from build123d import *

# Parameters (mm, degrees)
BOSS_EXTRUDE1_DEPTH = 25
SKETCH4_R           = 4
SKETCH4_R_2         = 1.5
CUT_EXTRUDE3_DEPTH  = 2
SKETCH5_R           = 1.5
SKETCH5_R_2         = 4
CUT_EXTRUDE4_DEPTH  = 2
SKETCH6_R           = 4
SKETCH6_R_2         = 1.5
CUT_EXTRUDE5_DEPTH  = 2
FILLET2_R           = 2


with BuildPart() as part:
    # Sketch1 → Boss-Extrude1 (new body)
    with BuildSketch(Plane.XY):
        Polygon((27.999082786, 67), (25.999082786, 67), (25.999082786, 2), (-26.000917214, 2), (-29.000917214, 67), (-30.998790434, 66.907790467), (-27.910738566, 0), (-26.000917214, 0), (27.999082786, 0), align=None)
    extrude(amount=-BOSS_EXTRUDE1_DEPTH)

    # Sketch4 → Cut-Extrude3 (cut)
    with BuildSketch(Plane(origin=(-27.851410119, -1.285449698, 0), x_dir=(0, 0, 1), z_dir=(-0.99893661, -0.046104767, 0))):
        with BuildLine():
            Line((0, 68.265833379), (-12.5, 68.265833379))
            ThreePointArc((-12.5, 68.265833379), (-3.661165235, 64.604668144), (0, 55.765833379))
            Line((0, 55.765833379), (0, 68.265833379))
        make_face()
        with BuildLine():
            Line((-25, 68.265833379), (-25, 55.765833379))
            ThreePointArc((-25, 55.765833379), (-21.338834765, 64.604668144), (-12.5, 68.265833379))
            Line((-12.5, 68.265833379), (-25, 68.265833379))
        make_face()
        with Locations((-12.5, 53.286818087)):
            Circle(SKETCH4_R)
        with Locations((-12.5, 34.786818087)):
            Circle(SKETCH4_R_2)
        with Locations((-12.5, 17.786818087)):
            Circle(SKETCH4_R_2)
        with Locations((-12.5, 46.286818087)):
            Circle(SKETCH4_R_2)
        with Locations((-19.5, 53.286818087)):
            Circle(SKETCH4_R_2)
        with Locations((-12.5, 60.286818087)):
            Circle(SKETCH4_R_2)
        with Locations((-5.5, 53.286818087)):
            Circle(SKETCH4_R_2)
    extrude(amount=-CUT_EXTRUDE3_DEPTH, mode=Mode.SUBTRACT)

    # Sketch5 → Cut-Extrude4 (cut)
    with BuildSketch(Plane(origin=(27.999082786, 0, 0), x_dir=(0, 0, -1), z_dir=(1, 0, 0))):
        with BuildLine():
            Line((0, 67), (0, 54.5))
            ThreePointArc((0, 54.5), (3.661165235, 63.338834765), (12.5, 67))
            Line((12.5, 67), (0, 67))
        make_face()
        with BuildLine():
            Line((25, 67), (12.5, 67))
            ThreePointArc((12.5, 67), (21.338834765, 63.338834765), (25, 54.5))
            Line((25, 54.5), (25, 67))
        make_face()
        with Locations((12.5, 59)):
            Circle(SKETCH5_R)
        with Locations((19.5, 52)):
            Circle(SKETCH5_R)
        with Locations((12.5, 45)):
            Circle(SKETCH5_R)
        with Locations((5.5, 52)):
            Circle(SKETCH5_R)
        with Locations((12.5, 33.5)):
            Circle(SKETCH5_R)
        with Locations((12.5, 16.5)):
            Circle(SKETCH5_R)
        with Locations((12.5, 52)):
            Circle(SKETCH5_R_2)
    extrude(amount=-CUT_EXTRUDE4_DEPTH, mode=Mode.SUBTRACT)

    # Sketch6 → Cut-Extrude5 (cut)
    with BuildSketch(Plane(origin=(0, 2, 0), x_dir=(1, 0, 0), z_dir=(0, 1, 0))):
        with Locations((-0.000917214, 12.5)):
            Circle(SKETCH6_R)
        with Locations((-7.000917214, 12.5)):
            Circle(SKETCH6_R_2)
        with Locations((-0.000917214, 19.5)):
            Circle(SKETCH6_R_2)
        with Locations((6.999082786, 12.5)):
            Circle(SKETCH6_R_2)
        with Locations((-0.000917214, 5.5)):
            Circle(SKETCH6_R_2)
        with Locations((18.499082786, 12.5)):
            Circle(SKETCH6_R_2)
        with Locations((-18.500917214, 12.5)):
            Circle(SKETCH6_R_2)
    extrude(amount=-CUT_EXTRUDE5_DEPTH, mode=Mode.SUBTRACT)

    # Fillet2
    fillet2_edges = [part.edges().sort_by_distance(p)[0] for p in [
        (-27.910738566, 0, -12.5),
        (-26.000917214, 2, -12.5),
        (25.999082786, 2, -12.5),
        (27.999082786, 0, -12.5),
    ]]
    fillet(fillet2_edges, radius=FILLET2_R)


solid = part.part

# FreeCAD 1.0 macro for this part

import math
import FreeCAD as App
import Part
import Sketcher

V = App.Vector


def edges_at(feature, points):
    """Names of the edges that pass closest to the given points."""
    edges = feature.Shape.Edges
    near = lambda p: min(range(len(edges)), key=lambda i: edges[i].distToShape(Part.Vertex(*p))[0])
    return sorted({f"Edge{near(p) + 1}" for p in points})


def add_polygon(sketch, points):
    """Adds a closed chain of lines whose ends are joined by coincident constraints."""
    first, n = sketch.GeometryCount, len(points)
    for a, b in zip(points, points[1:] + points[:1]):
        sketch.addGeometry(Part.LineSegment(App.Vector(*a, 0), App.Vector(*b, 0)), False)
    for i in range(n):
        sketch.addConstraint(Sketcher.Constraint("Coincident", first + i, 2, first + (i + 1) % n, 1))

doc = App.newDocument("Part")
body = doc.addObject("PartDesign::Body", "Body")

# Sketch on XY plane
sketch1 = body.newObject("Sketcher::SketchObject", "Sketch")
sketch1.AttachmentSupport = (doc.getObject("XY_Plane"), [""])
sketch1.MapMode = "FlatFace"
add_polygon(sketch1, [(27.999083, 67), (25.999083, 67), (25.999083, 2), (-26.000917, 2), (-29.000917, 67), (-30.99879, 66.90779), (-27.910739, 0), (27.999083, 0)])  # lines 0-7
sketch1.addConstraint([
    Sketcher.Constraint("Horizontal", 0),
    Sketcher.Constraint("Vertical", 1),
    Sketcher.Constraint("Horizontal", 2),
    Sketcher.Constraint("Horizontal", 6),
    Sketcher.Constraint("Vertical", 7),
    Sketcher.Constraint("PointOnObject", 5, 2, -1),
    Sketcher.Constraint("Perpendicular", 3, 4),
    Sketcher.Constraint("Perpendicular", 4, 5),
    Sketcher.Constraint("Horizontal", 0, 2, 3, 2),
    Sketcher.Constraint("DistanceX", 0, 2, 0, 1, 2.0),
    Sketcher.Constraint("DistanceX", 2, 2, 2, 1, 52.0),
    Sketcher.Constraint("DistanceY", 1, 2, 1, 1, 65.0),
    Sketcher.Constraint("DistanceY", 7, 1, 7, 2, 67.0),
    Sketcher.Constraint("Distance", 4, 2.0),
    Sketcher.Constraint("DistanceX", 3, 2, 0, 2, 55.0),
    Sketcher.Constraint("DistanceX", 4, 2, -1, 1, 30.99879),
])
pad1 = body.newObject("PartDesign::Pad", "Pad")
pad1.Profile = sketch1
pad1.Length = 25
pad1.Reversed = True

# Sketch on an angled plane
sketch2 = body.newObject("Sketcher::SketchObject", "Sketch001")
sketch2.Placement = App.Placement(V(-27.85141, -1.28545, 0), App.Rotation(V(0, 0, 1), V(-0.046104767, 0.99893661, 0), V(-0.99893661, -0.046104767, 0), "ZXY"))
sketch2.addGeometry([
    Part.LineSegment(V(0, 68.265833, 0), V(-12.5, 68.265833, 0)),  # 0
    Part.ArcOfCircle(Part.Circle(V(-12.5, 55.765833, 0), V(0, 0, 1), 12.5), math.radians(0), math.radians(90)),  # 1
    Part.LineSegment(V(0, 55.765833, 0), V(0, 68.265833, 0)),  # 2
    Part.LineSegment(V(-25, 68.265833, 0), V(-25, 55.765833, 0)),  # 3
    Part.ArcOfCircle(Part.Circle(V(-12.5, 55.765833, 0), V(0, 0, 1), 12.5), math.radians(90), math.radians(180)),  # 4
    Part.LineSegment(V(-12.5, 68.265833, 0), V(-25, 68.265833, 0)),  # 5
    Part.Circle(V(-12.5, 53.286818, 0), V(0, 0, 1), 4),  # 6
    Part.Circle(V(-12.5, 34.786818, 0), V(0, 0, 1), 1.5),  # 7
    Part.Circle(V(-12.5, 17.786818, 0), V(0, 0, 1), 1.5),  # 8
    Part.Circle(V(-12.5, 46.286818, 0), V(0, 0, 1), 1.5),  # 9
    Part.Circle(V(-19.5, 53.286818, 0), V(0, 0, 1), 1.5),  # 10
    Part.Circle(V(-12.5, 60.286818, 0), V(0, 0, 1), 1.5),  # 11
    Part.Circle(V(-5.5, 53.286818, 0), V(0, 0, 1), 1.5),  # 12
], False)
sketch2.addConstraint([
    Sketcher.Constraint("Tangent", 0, 2, 1, 2),
    Sketcher.Constraint("Tangent", 1, 1, 2, 1),
    Sketcher.Constraint("Coincident", 2, 2, 0, 1),
    Sketcher.Constraint("Tangent", 3, 2, 4, 2),
    Sketcher.Constraint("Tangent", 4, 1, 5, 1),
    Sketcher.Constraint("Coincident", 5, 2, 3, 1),
    Sketcher.Constraint("Horizontal", 0),
    Sketcher.Constraint("Vertical", 2),
    Sketcher.Constraint("Vertical", 3),
    Sketcher.Constraint("Horizontal", 5),
    Sketcher.Constraint("Coincident", 4, 3, 1, 3),
    Sketcher.Constraint("Equal", 1, 4),
    Sketcher.Constraint("Equal", 7, 8),
    Sketcher.Constraint("Equal", 8, 9),
    Sketcher.Constraint("Equal", 9, 10),
    Sketcher.Constraint("Equal", 10, 11),
    Sketcher.Constraint("Equal", 11, 12),
    Sketcher.Constraint("PointOnObject", 1, 1, -2),
    Sketcher.Constraint("Horizontal", 6, 3, 10, 3),
    Sketcher.Constraint("Horizontal", 10, 3, 12, 3),
    Sketcher.Constraint("Vertical", 4, 3, 6, 3),
    Sketcher.Constraint("Vertical", 6, 3, 7, 3),
    Sketcher.Constraint("Vertical", 7, 3, 8, 3),
    Sketcher.Constraint("Vertical", 8, 3, 9, 3),
    Sketcher.Constraint("Vertical", 9, 3, 11, 3),
    Sketcher.Constraint("Diameter", 6, 8.0),
    Sketcher.Constraint("Diameter", 7, 3.0),
    Sketcher.Constraint("Radius", 1, 12.5),
    Sketcher.Constraint("DistanceY", 8, 3, 7, 3, 17.0),
    Sketcher.Constraint("DistanceY", 9, 3, 6, 3, 7.0),
    Sketcher.Constraint("DistanceX", 10, 3, 6, 3, 7.0),
    Sketcher.Constraint("DistanceY", 6, 3, 11, 3, 7.0),
    Sketcher.Constraint("DistanceX", 6, 3, 12, 3, 7.0),
    Sketcher.Constraint("DistanceY", 7, 3, 6, 3, 18.5),
    Sketcher.Constraint("DistanceY", -1, 1, 6, 3, 53.286818),
    Sketcher.Constraint("DistanceY", -1, 1, 1, 3, 55.765833),
])
pocket1 = body.newObject("PartDesign::Pocket", "Pocket")
pocket1.Profile = sketch2
pocket1.Length = 2

# Sketch on YZ plane
sketch3 = body.newObject("Sketcher::SketchObject", "Sketch002")
sketch3.AttachmentSupport = (doc.getObject("YZ_Plane"), [""])
sketch3.MapMode = "FlatFace"
sketch3.AttachmentOffset = App.Placement(V(0, 0, 27.999083), App.Rotation())
sketch3.addGeometry([
    Part.LineSegment(V(67, 0, 0), V(54.5, 0, 0)),  # 0
    Part.ArcOfCircle(Part.Circle(V(54.5, -12.5, 0), V(0, 0, 1), 12.5), math.radians(0), math.radians(90)),  # 1
    Part.LineSegment(V(67, -12.5, 0), V(67, 0, 0)),  # 2
    Part.LineSegment(V(67, -25, 0), V(67, -12.5, 0)),  # 3
    Part.ArcOfCircle(Part.Circle(V(54.5, -12.5, 0), V(0, 0, 1), 12.5), math.radians(-90), math.radians(0)),  # 4
    Part.LineSegment(V(54.5, -25, 0), V(67, -25, 0)),  # 5
    Part.Circle(V(59, -12.5, 0), V(0, 0, 1), 1.5),  # 6
    Part.Circle(V(52, -19.5, 0), V(0, 0, 1), 1.5),  # 7
    Part.Circle(V(45, -12.5, 0), V(0, 0, 1), 1.5),  # 8
    Part.Circle(V(52, -5.5, 0), V(0, 0, 1), 1.5),  # 9
    Part.Circle(V(33.5, -12.5, 0), V(0, 0, 1), 1.5),  # 10
    Part.Circle(V(16.5, -12.5, 0), V(0, 0, 1), 1.5),  # 11
    Part.Circle(V(52, -12.5, 0), V(0, 0, 1), 4),  # 12
], False)
sketch3.addConstraint([
    Sketcher.Constraint("Tangent", 0, 2, 1, 2),
    Sketcher.Constraint("Tangent", 1, 1, 2, 1),
    Sketcher.Constraint("Coincident", 2, 2, 0, 1),
    Sketcher.Constraint("Tangent", 3, 2, 4, 2),
    Sketcher.Constraint("Tangent", 4, 1, 5, 1),
    Sketcher.Constraint("Coincident", 5, 2, 3, 1),
    Sketcher.Constraint("Horizontal", 0),
    Sketcher.Constraint("Vertical", 2),
    Sketcher.Constraint("Vertical", 3),
    Sketcher.Constraint("Horizontal", 5),
    Sketcher.Constraint("Coincident", 4, 3, 1, 3),
    Sketcher.Constraint("Equal", 1, 4),
    Sketcher.Constraint("Equal", 6, 7),
    Sketcher.Constraint("Equal", 7, 8),
    Sketcher.Constraint("Equal", 8, 9),
    Sketcher.Constraint("Equal", 9, 10),
    Sketcher.Constraint("Equal", 10, 11),
    Sketcher.Constraint("PointOnObject", 0, 2, -1),
    Sketcher.Constraint("Horizontal", 4, 3, 6, 3),
    Sketcher.Constraint("Horizontal", 6, 3, 8, 3),
    Sketcher.Constraint("Horizontal", 8, 3, 10, 3),
    Sketcher.Constraint("Horizontal", 10, 3, 11, 3),
    Sketcher.Constraint("Horizontal", 11, 3, 12, 3),
    Sketcher.Constraint("Vertical", 7, 3, 9, 3),
    Sketcher.Constraint("Vertical", 9, 3, 12, 3),
    Sketcher.Constraint("Diameter", 6, 3.0),
    Sketcher.Constraint("Diameter", 12, 8.0),
    Sketcher.Constraint("Radius", 1, 12.5),
    Sketcher.Constraint("DistanceX", -1, 1, 6, 3, 59.0),
    Sketcher.Constraint("DistanceX", -1, 1, 7, 3, 52.0),
    Sketcher.Constraint("DistanceX", -1, 1, 8, 3, 45.0),
    Sketcher.Constraint("DistanceX", -1, 1, 1, 1, 67.0),
    Sketcher.Constraint("DistanceY", 7, 3, 4, 3, 7.0),
    Sketcher.Constraint("DistanceY", 1, 3, 9, 3, 7.0),
    Sketcher.Constraint("DistanceX", 10, 3, 1, 3, 21.0),
    Sketcher.Constraint("DistanceX", 11, 3, 10, 3, 17.0),
])
pocket2 = body.newObject("PartDesign::Pocket", "Pocket001")
pocket2.Profile = sketch3
pocket2.Length = 2

# Sketch on XZ plane
sketch4 = body.newObject("Sketcher::SketchObject", "Sketch003")
sketch4.AttachmentSupport = (doc.getObject("XZ_Plane"), [""])
sketch4.MapMode = "FlatFace"
sketch4.AttachmentOffset = App.Placement(V(0, 0, -2), App.Rotation())
sketch4.addGeometry([
    Part.Circle(V(-0.000917, -12.5, 0), V(0, 0, 1), 4),  # 0
    Part.Circle(V(-7.000917, -12.5, 0), V(0, 0, 1), 1.5),  # 1
    Part.Circle(V(-0.000917, -19.5, 0), V(0, 0, 1), 1.5),  # 2
    Part.Circle(V(6.999083, -12.5, 0), V(0, 0, 1), 1.5),  # 3
    Part.Circle(V(-0.000917, -5.5, 0), V(0, 0, 1), 1.5),  # 4
    Part.Circle(V(18.499083, -12.5, 0), V(0, 0, 1), 1.5),  # 5
    Part.Circle(V(-18.500917, -12.5, 0), V(0, 0, 1), 1.5),  # 6
], False)
sketch4.addConstraint([
    Sketcher.Constraint("Equal", 1, 2),
    Sketcher.Constraint("Equal", 2, 3),
    Sketcher.Constraint("Equal", 3, 4),
    Sketcher.Constraint("Equal", 4, 5),
    Sketcher.Constraint("Equal", 5, 6),
    Sketcher.Constraint("Horizontal", 0, 3, 1, 3),
    Sketcher.Constraint("Horizontal", 1, 3, 3, 3),
    Sketcher.Constraint("Horizontal", 3, 3, 5, 3),
    Sketcher.Constraint("Horizontal", 5, 3, 6, 3),
    Sketcher.Constraint("Vertical", 0, 3, 2, 3),
    Sketcher.Constraint("Vertical", 2, 3, 4, 3),
    Sketcher.Constraint("Diameter", 0, 8.0),
    Sketcher.Constraint("Diameter", 1, 3.0),
    Sketcher.Constraint("DistanceX", 1, 3, 0, 3, 7.0),
    Sketcher.Constraint("DistanceY", 2, 3, 0, 3, 7.0),
    Sketcher.Constraint("DistanceX", 0, 3, 3, 3, 7.0),
    Sketcher.Constraint("DistanceY", 0, 3, 4, 3, 7.0),
    Sketcher.Constraint("DistanceY", 0, 3, -1, 1, 12.5),
    Sketcher.Constraint("DistanceX", 3, 3, 5, 3, 11.5),
    Sketcher.Constraint("DistanceX", 6, 3, 1, 3, 11.5),
    Sketcher.Constraint("DistanceX", 0, 3, -1, 1, 0.000917),
])
pocket3 = body.newObject("PartDesign::Pocket", "Pocket002")
pocket3.Profile = sketch4
pocket3.Length = 2
pocket3.Reversed = True
doc.recompute()

fillet = body.newObject("PartDesign::Fillet", "Fillet")
fillet.Base = (pocket3, edges_at(pocket3, [
    (-27.911, 0, -12.5),
    (-26.001, 2, -12.5),
    (25.999, 2, -12.5),
    (27.999, 0, -12.5),
]))
fillet.Radius = 2

doc.recompute()
